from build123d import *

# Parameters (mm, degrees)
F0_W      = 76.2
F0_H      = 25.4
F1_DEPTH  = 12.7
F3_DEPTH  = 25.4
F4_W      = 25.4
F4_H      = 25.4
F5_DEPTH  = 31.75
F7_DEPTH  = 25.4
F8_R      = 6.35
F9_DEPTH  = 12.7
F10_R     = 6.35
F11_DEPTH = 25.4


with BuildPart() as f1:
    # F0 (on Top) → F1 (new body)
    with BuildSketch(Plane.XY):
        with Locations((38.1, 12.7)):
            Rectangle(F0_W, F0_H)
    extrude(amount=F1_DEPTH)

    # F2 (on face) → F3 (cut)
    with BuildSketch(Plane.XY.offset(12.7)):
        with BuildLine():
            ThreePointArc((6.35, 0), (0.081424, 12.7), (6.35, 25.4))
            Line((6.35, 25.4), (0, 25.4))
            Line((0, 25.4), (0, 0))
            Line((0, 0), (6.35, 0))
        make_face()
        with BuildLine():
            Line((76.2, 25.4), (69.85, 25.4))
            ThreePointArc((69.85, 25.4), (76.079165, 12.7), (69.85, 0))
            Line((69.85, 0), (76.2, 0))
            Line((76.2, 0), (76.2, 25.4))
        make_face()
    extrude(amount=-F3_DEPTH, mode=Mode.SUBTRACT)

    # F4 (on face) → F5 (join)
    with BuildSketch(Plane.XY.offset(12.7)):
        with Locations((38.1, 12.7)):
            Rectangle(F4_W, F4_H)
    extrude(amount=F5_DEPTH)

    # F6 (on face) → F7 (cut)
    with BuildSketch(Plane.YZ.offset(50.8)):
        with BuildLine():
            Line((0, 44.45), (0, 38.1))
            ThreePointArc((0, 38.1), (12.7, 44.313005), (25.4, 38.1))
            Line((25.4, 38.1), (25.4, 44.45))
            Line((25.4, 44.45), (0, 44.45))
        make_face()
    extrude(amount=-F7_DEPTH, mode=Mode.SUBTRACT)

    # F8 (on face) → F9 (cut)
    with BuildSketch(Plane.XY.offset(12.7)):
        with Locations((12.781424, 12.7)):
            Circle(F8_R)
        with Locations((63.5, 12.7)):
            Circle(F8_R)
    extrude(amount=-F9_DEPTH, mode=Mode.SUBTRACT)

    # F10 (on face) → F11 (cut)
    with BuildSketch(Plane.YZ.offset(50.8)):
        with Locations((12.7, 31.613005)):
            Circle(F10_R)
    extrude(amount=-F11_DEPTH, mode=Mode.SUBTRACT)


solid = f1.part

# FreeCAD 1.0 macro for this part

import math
import FreeCAD as App
import Part
import Sketcher
Q = App.Units.Quantity


def add_polygon(sketch, points):
    """Adds a closed chain of lines whose ends are joined by coincident constraints."""
    first, n = sketch.GeometryCount, len(points)
    for a, b in zip(points, points[1:] + points[:1]):
        sketch.addGeometry(Part.LineSegment(App.Vector(*a, 0), App.Vector(*b, 0)), False)
    for i in range(n):
        sketch.addConstraint(Sketcher.Constraint("Coincident", first + i, 2, first + (i + 1) % n, 1))

doc = App.newDocument("Part")
body = doc.addObject("PartDesign::Body", "Body")

sketch1 = body.newObject("Sketcher::SketchObject", "Sketch")
sketch1.AttachmentSupport = (doc.getObject("XY_Plane"), [""])
sketch1.MapMode = "FlatFace"
add_polygon(sketch1, [(0, 25), (0, 0), (76, 0), (76, 25)])
sketch1.addConstraint(Sketcher.Constraint("Vertical", 0))
sketch1.addConstraint(Sketcher.Constraint("Horizontal", 1))
sketch1.addConstraint(Sketcher.Constraint("Vertical", 2))
sketch1.addConstraint(Sketcher.Constraint("Horizontal", 3))
sketch1.addConstraint(Sketcher.Constraint("Coincident", 0, 2, -1, 1))
sketch1.addConstraint(Sketcher.Constraint("DistanceX", 1, 1, 1, 2, Q("3 in")))
sketch1.addConstraint(Sketcher.Constraint("DistanceY", 0, 2, 0, 1, Q("1 in")))
pad1 = body.newObject("PartDesign::Pad", "Pad")
pad1.Profile = sketch1
pad1.Length = Q("0.5 in")

sketch2 = body.newObject("Sketcher::SketchObject", "Sketch001")
sketch2.AttachmentSupport = (doc.getObject("XY_Plane"), [""])
sketch2.MapMode = "FlatFace"
sketch2.AttachmentOffset = App.Placement(App.Vector(0, 0, 0.5 * 25.4), App.Rotation())
sketch2.addGeometry(Part.ArcOfCircle(Part.Circle(App.Vector(16, 13, 0), App.Vector(0, 0, 1), 16), math.radians(127), math.radians(233)), False)
sketch2.addGeometry(Part.LineSegment(App.Vector(6, 25, 0), App.Vector(0, 25, 0)), False)
sketch2.addGeometry(Part.LineSegment(App.Vector(0, 25, 0), App.Vector(0, 0, 0)), False)
sketch2.addGeometry(Part.LineSegment(App.Vector(0, 0, 0), App.Vector(6, 0, 0)), False)
sketch2.addGeometry(Part.LineSegment(App.Vector(76, 25, 0), App.Vector(70, 25, 0)), False)
sketch2.addGeometry(Part.ArcOfCircle(Part.Circle(App.Vector(60, 13, 0), App.Vector(0, 0, 1), 16), math.radians(-52), math.radians(52)), False)
sketch2.addGeometry(Part.LineSegment(App.Vector(70, 0, 0), App.Vector(76, 0, 0)), False)
sketch2.addGeometry(Part.LineSegment(App.Vector(76, 0, 0), App.Vector(76, 25, 0)), False)
sketch2.addConstraint(Sketcher.Constraint("Coincident", 0, 1, 1, 1))
sketch2.addConstraint(Sketcher.Constraint("Coincident", 1, 2, 2, 1))
sketch2.addConstraint(Sketcher.Constraint("Coincident", 2, 2, 3, 1))
sketch2.addConstraint(Sketcher.Constraint("Coincident", 3, 2, 0, 2))
sketch2.addConstraint(Sketcher.Constraint("Coincident", 4, 2, 5, 2))
sketch2.addConstraint(Sketcher.Constraint("Coincident", 5, 1, 6, 1))
sketch2.addConstraint(Sketcher.Constraint("Coincident", 6, 2, 7, 1))
sketch2.addConstraint(Sketcher.Constraint("Coincident", 7, 2, 4, 1))
sketch2.addConstraint(Sketcher.Constraint("Horizontal", 1))
sketch2.addConstraint(Sketcher.Constraint("Vertical", 2))
sketch2.addConstraint(Sketcher.Constraint("Horizontal", 3))
sketch2.addConstraint(Sketcher.Constraint("Horizontal", 4))
sketch2.addConstraint(Sketcher.Constraint("Horizontal", 6))
sketch2.addConstraint(Sketcher.Constraint("Vertical", 7))
sketch2.addConstraint(Sketcher.Constraint("Coincident", 2, 2, -1, 1))
sketch2.addConstraint(Sketcher.Constraint("PointOnObject", 5, 1, -1))
sketch2.addConstraint(Sketcher.Constraint("Horizontal", 0, 3, 5, 3))
sketch2.addConstraint(Sketcher.Constraint("Horizontal", 1, 2, 4, 2))
sketch2.addConstraint(Sketcher.Constraint("Vertical", 0, 1, 3, 2))
sketch2.addConstraint(Sketcher.Constraint("Equal", 3, 4))
sketch2.addConstraint(Sketcher.Constraint("DistanceY", 2, 2, 2, 1, Q("1 in")))
sketch2.addConstraint(Sketcher.Constraint("DistanceX", -1, 1, 6, 2, Q("3 in")))
sketch2.addConstraint(Sketcher.Constraint("DistanceX", 1, 2, 1, 1, Q("0.25 in")))
sketch2.addConstraint(Sketcher.Constraint("Radius", 0, Q("15.999251 mm")))
sketch2.addConstraint(Sketcher.Constraint("Radius", 5, Q("16.06094 mm")))
pocket1 = body.newObject("PartDesign::Pocket", "Pocket")
pocket1.Profile = sketch2
pocket1.Length = Q("1 in")

sketch3 = body.newObject("Sketcher::SketchObject", "Sketch002")
sketch3.AttachmentSupport = (doc.getObject("XY_Plane"), [""])
sketch3.MapMode = "FlatFace"
sketch3.AttachmentOffset = App.Placement(App.Vector(0, 0, 0.5 * 25.4), App.Rotation())
add_polygon(sketch3, [(25, 25), (25, 0), (51, 0), (51, 25)])
sketch3.addConstraint(Sketcher.Constraint("Vertical", 0))
sketch3.addConstraint(Sketcher.Constraint("Horizontal", 1))
sketch3.addConstraint(Sketcher.Constraint("Vertical", 2))
sketch3.addConstraint(Sketcher.Constraint("Horizontal", 3))
sketch3.addConstraint(Sketcher.Constraint("PointOnObject", 0, 2, -1))
sketch3.addConstraint(Sketcher.Constraint("Equal", 3, 0))
sketch3.addConstraint(Sketcher.Constraint("DistanceX", 1, 1, 1, 2, Q("1 in")))
sketch3.addConstraint(Sketcher.Constraint("DistanceX", -1, 1, 0, 2, Q("1 in")))
pad2 = body.newObject("PartDesign::Pad", "Pad001")
pad2.Profile = sketch3
pad2.Length = Q("1.25 in")

sketch4 = body.newObject("Sketcher::SketchObject", "Sketch003")
sketch4.AttachmentSupport = (doc.getObject("YZ_Plane"), [""])
sketch4.MapMode = "FlatFace"
sketch4.AttachmentOffset = App.Placement(App.Vector(0, 0, 2 * 25.4), App.Rotation())
sketch4.addGeometry(Part.LineSegment(App.Vector(0, 44, 0), App.Vector(0, 38, 0)), False)
sketch4.addGeometry(Part.ArcOfCircle(Part.Circle(App.Vector(13, 28, 0), App.Vector(0, 0, 1), 16), math.radians(38), math.radians(142)), False)
sketch4.addGeometry(Part.LineSegment(App.Vector(25, 38, 0), App.Vector(25, 44, 0)), False)
sketch4.addGeometry(Part.LineSegment(App.Vector(25, 44, 0), App.Vector(0, 44, 0)), False)
sketch4.addConstraint(Sketcher.Constraint("Coincident", 0, 2, 1, 2))
sketch4.addConstraint(Sketcher.Constraint("Coincident", 1, 1, 2, 1))
sketch4.addConstraint(Sketcher.Constraint("Coincident", 2, 2, 3, 1))
sketch4.addConstraint(Sketcher.Constraint("Coincident", 3, 2, 0, 1))
sketch4.addConstraint(Sketcher.Constraint("Vertical", 0))
sketch4.addConstraint(Sketcher.Constraint("Vertical", 2))
sketch4.addConstraint(Sketcher.Constraint("Horizontal", 3))
sketch4.addConstraint(Sketcher.Constraint("PointOnObject", 0, 2, -2))
sketch4.addConstraint(Sketcher.Constraint("Horizontal", 0, 2, 1, 1))
sketch4.addConstraint(Sketcher.Constraint("DistanceX", 3, 2, 3, 1, Q("1 in")))
sketch4.addConstraint(Sketcher.Constraint("DistanceY", 0, 2, 0, 1, Q("0.25 in")))
sketch4.addConstraint(Sketcher.Constraint("DistanceY", -1, 1, 0, 2, Q("1.5 in")))
sketch4.addConstraint(Sketcher.Constraint("Radius", 1, Q("16.086534 mm")))
pocket2 = body.newObject("PartDesign::Pocket", "Pocket001")
pocket2.Profile = sketch4
pocket2.Length = Q("1 in")

sketch5 = body.newObject("Sketcher::SketchObject", "Sketch004")
sketch5.AttachmentSupport = (doc.getObject("XY_Plane"), [""])
sketch5.MapMode = "FlatFace"
sketch5.AttachmentOffset = App.Placement(App.Vector(0, 0, 0.5 * 25.4), App.Rotation())
sketch5.addGeometry(Part.Circle(App.Vector(13, 13, 0), App.Vector(0, 0, 1), 6), False)
sketch5.addGeometry(Part.Circle(App.Vector(64, 13, 0), App.Vector(0, 0, 1), 6), False)
sketch5.addConstraint(Sketcher.Constraint("Equal", 0, 1))
sketch5.addConstraint(Sketcher.Constraint("Horizontal", 0, 3, 1, 3))
sketch5.addConstraint(Sketcher.Constraint("Diameter", 0, Q("0.5 in")))
sketch5.addConstraint(Sketcher.Constraint("DistanceY", -1, 1, 0, 3, Q("0.5 in")))
sketch5.addConstraint(Sketcher.Constraint("DistanceX", -1, 1, 1, 3, Q("2.5 in")))
sketch5.addConstraint(Sketcher.Constraint("DistanceX", -1, 1, 0, 3, Q("12.781424 mm")))
pocket3 = body.newObject("PartDesign::Pocket", "Pocket002")
pocket3.Profile = sketch5
pocket3.Length = Q("0.5 in")

sketch6 = body.newObject("Sketcher::SketchObject", "Sketch005")
sketch6.AttachmentSupport = (doc.getObject("YZ_Plane"), [""])
sketch6.MapMode = "FlatFace"
sketch6.AttachmentOffset = App.Placement(App.Vector(0, 0, 2 * 25.4), App.Rotation())
sketch6.addGeometry(Part.Circle(App.Vector(13, 32, 0), App.Vector(0, 0, 1), 6), False)
sketch6.addConstraint(Sketcher.Constraint("Diameter", 0, Q("0.5 in")))
sketch6.addConstraint(Sketcher.Constraint("DistanceX", -1, 1, 0, 3, Q("0.5 in")))
sketch6.addConstraint(Sketcher.Constraint("DistanceY", -1, 1, 0, 3, Q("31.613005 mm")))
pocket4 = body.newObject("PartDesign::Pocket", "Pocket003")
pocket4.Profile = sketch6
pocket4.Length = Q("1 in")

doc.recompute()
